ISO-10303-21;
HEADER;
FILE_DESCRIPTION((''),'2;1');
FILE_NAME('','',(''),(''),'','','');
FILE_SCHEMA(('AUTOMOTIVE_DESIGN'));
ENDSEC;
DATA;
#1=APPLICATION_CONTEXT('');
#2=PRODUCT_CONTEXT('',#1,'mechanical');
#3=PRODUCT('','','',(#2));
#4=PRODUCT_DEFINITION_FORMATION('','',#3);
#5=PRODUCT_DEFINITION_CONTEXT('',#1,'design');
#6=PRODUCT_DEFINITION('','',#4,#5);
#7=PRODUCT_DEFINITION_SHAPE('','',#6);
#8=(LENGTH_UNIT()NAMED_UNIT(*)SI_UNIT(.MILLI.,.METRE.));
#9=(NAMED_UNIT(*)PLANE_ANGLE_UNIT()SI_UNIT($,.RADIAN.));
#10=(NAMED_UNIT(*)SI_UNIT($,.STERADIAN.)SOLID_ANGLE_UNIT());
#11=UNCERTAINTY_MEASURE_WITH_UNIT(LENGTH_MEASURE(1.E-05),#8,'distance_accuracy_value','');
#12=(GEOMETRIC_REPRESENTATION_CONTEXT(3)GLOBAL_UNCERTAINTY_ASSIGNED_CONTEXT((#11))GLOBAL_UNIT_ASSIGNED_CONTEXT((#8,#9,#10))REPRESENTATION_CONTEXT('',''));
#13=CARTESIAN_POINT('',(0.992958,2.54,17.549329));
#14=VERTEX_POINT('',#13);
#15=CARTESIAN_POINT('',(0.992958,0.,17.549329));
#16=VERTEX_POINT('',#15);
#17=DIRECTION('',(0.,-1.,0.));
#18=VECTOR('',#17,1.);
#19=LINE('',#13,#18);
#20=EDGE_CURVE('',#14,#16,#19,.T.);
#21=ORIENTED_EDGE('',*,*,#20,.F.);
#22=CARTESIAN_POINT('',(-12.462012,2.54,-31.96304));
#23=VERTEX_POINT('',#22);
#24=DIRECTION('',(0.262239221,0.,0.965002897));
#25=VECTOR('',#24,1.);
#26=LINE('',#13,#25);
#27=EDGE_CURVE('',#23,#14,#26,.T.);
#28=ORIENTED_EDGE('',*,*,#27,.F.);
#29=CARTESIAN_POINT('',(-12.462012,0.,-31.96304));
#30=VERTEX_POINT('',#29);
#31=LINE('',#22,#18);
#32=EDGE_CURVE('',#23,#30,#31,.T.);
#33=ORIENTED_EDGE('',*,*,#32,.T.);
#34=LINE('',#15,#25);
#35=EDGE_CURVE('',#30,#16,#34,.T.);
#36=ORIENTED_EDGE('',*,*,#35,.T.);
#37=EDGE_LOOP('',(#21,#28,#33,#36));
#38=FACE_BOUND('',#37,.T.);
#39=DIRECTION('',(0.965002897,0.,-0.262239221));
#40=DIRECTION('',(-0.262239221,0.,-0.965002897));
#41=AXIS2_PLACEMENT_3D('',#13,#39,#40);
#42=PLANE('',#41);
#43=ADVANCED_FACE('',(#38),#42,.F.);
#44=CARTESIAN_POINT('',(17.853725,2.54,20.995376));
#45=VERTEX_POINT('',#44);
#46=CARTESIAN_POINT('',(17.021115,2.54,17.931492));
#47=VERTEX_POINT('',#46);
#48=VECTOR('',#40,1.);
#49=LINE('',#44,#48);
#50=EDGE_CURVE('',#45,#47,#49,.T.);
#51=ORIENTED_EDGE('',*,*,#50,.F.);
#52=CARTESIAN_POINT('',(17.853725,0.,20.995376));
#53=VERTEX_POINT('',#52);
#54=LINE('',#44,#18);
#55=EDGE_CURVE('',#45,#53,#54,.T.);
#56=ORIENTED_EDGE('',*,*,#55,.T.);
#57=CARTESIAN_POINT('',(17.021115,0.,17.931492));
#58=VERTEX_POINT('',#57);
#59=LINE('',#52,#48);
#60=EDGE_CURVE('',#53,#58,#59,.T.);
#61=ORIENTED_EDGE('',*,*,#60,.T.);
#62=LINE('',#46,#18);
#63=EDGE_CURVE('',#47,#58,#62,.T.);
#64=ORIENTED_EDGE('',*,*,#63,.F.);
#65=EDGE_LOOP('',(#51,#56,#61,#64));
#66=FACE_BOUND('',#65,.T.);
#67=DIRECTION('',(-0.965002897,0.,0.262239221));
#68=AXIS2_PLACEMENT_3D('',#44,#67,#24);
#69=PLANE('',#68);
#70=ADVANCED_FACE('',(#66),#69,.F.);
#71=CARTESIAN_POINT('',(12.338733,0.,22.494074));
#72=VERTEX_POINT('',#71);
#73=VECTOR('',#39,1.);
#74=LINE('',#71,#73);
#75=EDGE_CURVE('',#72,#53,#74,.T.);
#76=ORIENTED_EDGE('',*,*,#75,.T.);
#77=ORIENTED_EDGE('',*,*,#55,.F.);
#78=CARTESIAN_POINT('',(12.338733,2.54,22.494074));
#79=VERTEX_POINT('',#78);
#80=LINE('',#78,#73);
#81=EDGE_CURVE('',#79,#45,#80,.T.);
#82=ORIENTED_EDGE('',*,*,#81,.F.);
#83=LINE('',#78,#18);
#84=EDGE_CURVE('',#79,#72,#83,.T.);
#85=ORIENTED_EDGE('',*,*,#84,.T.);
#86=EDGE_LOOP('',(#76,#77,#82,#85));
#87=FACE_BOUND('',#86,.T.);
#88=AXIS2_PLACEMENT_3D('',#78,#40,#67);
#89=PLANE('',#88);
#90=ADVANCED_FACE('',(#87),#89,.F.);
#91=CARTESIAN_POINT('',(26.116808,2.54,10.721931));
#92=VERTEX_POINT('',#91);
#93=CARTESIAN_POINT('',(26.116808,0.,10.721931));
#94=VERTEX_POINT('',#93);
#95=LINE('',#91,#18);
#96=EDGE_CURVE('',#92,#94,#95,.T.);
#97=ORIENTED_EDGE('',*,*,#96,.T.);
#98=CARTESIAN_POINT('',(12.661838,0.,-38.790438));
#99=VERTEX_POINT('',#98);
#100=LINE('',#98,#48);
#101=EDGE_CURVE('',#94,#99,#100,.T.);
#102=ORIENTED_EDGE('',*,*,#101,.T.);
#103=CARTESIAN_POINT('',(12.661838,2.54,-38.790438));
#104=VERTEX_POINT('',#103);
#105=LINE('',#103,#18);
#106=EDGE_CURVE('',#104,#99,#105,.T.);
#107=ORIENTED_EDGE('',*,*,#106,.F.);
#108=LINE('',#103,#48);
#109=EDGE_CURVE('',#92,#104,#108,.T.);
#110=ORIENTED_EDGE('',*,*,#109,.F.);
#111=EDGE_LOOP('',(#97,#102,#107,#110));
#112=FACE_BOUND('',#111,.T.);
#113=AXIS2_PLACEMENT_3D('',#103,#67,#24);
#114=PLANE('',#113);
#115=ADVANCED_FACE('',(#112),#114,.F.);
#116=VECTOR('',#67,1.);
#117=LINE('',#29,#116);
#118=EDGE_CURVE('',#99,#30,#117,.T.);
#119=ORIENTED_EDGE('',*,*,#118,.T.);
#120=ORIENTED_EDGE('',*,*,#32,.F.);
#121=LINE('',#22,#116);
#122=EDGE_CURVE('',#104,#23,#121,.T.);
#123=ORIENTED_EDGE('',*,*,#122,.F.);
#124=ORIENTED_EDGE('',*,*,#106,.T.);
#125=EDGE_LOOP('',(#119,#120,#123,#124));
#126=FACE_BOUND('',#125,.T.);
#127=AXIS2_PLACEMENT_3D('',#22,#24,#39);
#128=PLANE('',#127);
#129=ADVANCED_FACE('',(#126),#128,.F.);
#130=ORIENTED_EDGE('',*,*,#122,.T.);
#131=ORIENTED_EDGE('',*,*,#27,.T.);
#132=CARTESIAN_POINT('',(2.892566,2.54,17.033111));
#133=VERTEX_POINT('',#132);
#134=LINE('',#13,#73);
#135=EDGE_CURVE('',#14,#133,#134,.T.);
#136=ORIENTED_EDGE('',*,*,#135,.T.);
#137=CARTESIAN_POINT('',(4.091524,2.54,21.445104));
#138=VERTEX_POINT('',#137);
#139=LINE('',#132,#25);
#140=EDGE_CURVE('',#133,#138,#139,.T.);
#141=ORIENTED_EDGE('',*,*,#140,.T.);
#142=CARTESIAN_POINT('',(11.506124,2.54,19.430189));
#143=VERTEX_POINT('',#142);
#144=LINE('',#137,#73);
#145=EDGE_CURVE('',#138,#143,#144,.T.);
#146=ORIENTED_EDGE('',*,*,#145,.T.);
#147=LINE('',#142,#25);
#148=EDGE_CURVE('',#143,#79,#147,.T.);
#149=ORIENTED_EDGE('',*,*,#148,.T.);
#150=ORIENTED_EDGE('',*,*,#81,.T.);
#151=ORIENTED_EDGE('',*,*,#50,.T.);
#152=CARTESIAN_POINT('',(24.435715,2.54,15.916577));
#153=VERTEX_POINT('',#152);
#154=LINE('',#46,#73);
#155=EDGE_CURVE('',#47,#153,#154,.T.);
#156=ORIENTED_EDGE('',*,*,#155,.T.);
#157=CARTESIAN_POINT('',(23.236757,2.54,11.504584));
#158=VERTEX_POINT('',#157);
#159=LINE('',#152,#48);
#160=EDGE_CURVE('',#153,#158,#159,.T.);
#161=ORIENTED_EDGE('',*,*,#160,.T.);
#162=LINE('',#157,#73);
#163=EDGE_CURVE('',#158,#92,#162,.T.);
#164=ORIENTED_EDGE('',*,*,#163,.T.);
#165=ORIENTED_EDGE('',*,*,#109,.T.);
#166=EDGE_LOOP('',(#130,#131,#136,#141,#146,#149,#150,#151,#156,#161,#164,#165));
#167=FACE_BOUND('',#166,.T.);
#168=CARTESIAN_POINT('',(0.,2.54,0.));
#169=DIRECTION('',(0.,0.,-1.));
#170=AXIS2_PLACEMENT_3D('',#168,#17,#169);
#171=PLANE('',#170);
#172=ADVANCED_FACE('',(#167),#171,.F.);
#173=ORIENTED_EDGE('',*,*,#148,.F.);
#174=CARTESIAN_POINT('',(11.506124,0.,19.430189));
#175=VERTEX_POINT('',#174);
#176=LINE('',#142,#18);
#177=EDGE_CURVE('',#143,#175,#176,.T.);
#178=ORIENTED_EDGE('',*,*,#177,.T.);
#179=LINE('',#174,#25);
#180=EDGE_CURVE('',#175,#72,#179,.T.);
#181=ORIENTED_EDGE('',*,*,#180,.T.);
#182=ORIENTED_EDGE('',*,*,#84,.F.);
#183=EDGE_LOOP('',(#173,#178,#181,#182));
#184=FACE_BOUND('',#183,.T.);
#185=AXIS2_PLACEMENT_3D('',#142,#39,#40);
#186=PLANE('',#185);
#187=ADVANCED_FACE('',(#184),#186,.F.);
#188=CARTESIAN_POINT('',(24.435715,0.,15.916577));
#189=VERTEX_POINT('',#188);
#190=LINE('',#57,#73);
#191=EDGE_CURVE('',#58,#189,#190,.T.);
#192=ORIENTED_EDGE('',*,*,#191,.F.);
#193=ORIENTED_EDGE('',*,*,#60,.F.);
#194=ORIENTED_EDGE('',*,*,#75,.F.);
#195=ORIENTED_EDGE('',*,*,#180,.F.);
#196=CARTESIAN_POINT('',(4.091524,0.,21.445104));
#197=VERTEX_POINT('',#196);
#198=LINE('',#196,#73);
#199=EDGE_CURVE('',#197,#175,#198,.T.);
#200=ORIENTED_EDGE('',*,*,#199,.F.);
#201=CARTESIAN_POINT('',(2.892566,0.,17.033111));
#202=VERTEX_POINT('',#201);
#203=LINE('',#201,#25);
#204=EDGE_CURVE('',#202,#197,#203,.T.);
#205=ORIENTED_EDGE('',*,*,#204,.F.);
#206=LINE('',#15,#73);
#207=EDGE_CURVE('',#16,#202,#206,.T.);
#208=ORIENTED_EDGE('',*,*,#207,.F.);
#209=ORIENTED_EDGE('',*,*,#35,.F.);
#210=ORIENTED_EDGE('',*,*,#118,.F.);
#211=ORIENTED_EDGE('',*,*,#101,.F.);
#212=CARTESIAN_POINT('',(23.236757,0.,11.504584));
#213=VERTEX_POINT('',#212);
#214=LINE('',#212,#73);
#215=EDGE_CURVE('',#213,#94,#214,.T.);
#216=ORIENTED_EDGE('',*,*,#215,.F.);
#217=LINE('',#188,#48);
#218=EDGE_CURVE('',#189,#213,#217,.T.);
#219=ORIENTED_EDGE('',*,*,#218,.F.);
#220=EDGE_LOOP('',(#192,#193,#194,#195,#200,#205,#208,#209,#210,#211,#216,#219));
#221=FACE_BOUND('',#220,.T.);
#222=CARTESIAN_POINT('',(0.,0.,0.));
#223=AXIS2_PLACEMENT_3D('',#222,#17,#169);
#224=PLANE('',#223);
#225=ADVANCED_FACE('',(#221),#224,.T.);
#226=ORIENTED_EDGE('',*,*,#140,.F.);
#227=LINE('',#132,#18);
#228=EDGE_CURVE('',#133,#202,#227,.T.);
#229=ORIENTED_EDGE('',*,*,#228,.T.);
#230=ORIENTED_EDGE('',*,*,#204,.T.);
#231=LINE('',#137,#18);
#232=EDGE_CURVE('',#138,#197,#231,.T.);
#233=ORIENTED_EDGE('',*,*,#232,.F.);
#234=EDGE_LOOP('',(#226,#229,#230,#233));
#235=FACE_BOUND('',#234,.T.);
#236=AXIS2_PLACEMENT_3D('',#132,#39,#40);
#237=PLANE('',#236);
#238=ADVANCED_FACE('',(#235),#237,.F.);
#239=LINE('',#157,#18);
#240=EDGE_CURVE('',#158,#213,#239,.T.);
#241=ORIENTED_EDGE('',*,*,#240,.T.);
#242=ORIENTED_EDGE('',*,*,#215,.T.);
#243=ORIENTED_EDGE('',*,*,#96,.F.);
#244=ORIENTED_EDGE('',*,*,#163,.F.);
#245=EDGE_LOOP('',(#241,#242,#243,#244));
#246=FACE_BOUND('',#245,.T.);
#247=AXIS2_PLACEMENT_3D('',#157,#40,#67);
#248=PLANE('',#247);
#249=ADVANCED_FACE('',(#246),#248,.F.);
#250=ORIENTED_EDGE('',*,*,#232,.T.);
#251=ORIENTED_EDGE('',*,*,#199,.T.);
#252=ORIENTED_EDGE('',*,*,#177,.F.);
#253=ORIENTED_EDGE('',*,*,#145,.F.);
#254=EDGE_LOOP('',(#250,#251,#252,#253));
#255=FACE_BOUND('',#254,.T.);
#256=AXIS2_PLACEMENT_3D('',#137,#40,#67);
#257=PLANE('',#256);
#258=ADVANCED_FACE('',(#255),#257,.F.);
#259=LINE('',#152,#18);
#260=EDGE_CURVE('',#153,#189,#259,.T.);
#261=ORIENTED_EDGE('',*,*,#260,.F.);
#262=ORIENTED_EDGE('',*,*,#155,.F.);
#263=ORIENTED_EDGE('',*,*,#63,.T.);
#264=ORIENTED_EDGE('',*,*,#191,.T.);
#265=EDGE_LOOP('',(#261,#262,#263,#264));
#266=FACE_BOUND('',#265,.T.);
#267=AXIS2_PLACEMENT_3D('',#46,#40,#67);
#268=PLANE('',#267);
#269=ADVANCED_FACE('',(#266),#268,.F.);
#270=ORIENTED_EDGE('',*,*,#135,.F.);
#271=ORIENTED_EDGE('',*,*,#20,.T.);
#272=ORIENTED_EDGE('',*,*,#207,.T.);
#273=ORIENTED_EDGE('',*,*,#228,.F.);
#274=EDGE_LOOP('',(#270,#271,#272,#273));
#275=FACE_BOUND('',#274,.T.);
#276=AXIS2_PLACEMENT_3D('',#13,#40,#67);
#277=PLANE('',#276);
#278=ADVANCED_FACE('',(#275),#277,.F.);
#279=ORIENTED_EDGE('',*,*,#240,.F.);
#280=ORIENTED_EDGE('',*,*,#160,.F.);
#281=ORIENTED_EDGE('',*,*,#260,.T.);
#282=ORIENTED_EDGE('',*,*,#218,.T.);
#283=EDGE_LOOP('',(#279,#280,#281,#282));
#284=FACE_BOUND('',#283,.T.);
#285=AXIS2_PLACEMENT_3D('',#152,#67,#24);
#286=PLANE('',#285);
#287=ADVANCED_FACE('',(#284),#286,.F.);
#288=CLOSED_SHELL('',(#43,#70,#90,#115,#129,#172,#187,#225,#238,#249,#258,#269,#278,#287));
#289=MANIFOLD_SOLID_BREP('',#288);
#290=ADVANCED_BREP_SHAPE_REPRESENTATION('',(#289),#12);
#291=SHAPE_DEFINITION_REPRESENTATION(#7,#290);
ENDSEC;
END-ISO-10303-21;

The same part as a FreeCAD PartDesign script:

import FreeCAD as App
import Part
import Sketcher
from FreeCAD import Vector
Q = App.Units.Quantity

doc = App.newDocument("Part")
body = doc.addObject("PartDesign::Body", "Body")

# Sketch on XZ plane
sketch1 = body.newObject("Sketcher::SketchObject", "Sketch")
sketch1.AttachmentSupport = (doc.getObject("XZ_Plane"), [""])
sketch1.MapMode = "FlatFace"
sketch1.addGeometry(Part.LineSegment(Vector(12.7, -38.8, 0), Vector(-12.5, -32, 0)), False)
sketch1.addGeometry(Part.LineSegment(Vector(-12.5, -32, 0), Vector(1, 17.5, 0)), False)
sketch1.addGeometry(Part.LineSegment(Vector(1, 17.5, 0), Vector(2.9, 17, 0)), False)
sketch1.addGeometry(Part.LineSegment(Vector(2.9, 17, 0), Vector(4.1, 21.4, 0)), False)
sketch1.addGeometry(Part.LineSegment(Vector(4.1, 21.4, 0), Vector(11.5, 19.4, 0)), False)
sketch1.addGeometry(Part.LineSegment(Vector(11.5, 19.4, 0), Vector(12.3, 22.5, 0)), False)
sketch1.addGeometry(Part.LineSegment(Vector(12.3, 22.5, 0), Vector(17.9, 21, 0)), False)
sketch1.addGeometry(Part.LineSegment(Vector(17.9, 21, 0), Vector(17, 17.9, 0)), False)
sketch1.addGeometry(Part.LineSegment(Vector(17, 17.9, 0), Vector(24.4, 15.9, 0)), False)
sketch1.addGeometry(Part.LineSegment(Vector(24.4, 15.9, 0), Vector(23.2, 11.5, 0)), False)
sketch1.addGeometry(Part.LineSegment(Vector(23.2, 11.5, 0), Vector(26.1, 10.7, 0)), False)
sketch1.addGeometry(Part.LineSegment(Vector(26.1, 10.7, 0), Vector(12.7, -38.8, 0)), False)
sketch1.addConstraint(Sketcher.Constraint("Coincident", 0, 2, 1, 1))
sketch1.addConstraint(Sketcher.Constraint("Coincident", 1, 2, 2, 1))
sketch1.addConstraint(Sketcher.Constraint("Coincident", 2, 2, 3, 1))
sketch1.addConstraint(Sketcher.Constraint("Coincident", 3, 2, 4, 1))
sketch1.addConstraint(Sketcher.Constraint("Coincident", 4, 2, 5, 1))
sketch1.addConstraint(Sketcher.Constraint("Coincident", 5, 2, 6, 1))
sketch1.addConstraint(Sketcher.Constraint("Coincident", 6, 2, 7, 1))
sketch1.addConstraint(Sketcher.Constraint("Coincident", 7, 2, 8, 1))
sketch1.addConstraint(Sketcher.Constraint("Coincident", 8, 2, 9, 1))
sketch1.addConstraint(Sketcher.Constraint("Coincident", 9, 2, 10, 1))
sketch1.addConstraint(Sketcher.Constraint("Coincident", 10, 2, 11, 1))
sketch1.addConstraint(Sketcher.Constraint("Coincident", 11, 2, 0, 1))
sketch1.addConstraint(Sketcher.Constraint("Perpendicular", 0, 1))
sketch1.addConstraint(Sketcher.Constraint("Perpendicular", 1, 2))
sketch1.addConstraint(Sketcher.Constraint("Perpendicular", 2, 3))
sketch1.addConstraint(Sketcher.Constraint("Perpendicular", 3, 4))
sketch1.addConstraint(Sketcher.Constraint("Perpendicular", 4, 5))
sketch1.addConstraint(Sketcher.Constraint("Perpendicular", 5, 6))
sketch1.addConstraint(Sketcher.Constraint("Perpendicular", 6, 7))
sketch1.addConstraint(Sketcher.Constraint("Perpendicular", 7, 8))
sketch1.addConstraint(Sketcher.Constraint("Perpendicular", 8, 9))
sketch1.addConstraint(Sketcher.Constraint("Perpendicular", 9, 10))
sketch1.addConstraint(Sketcher.Constraint("Perpendicular", 10, 11))
sketch1.addConstraint(Sketcher.Constraint("Equal", 5, 7))
sketch1.addConstraint(Sketcher.Constraint("Equal", 4, 8))
sketch1.addConstraint(Sketcher.Constraint("Equal", 3, 9))
sketch1.addConstraint(Sketcher.Constraint("Distance", 1, Q("2.02 in")))
sketch1.addConstraint(Sketcher.Constraint("Distance", 3, Q("0.18 in")))
sketch1.addConstraint(Sketcher.Constraint("Distance", 0, Q("1.025 in")))
sketch1.addConstraint(Sketcher.Constraint("Distance", 5, Q("0.125 in")))
sketch1.addConstraint(Sketcher.Constraint("Distance", 6, Q("0.225 in")))
sketch1.addConstraint(Sketcher.Constraint("Distance", 2, Q("0.0775 in")))
sketch1.addConstraint(Sketcher.Constraint("Distance", 4, Q("0.3025 in")))
sketch1.addConstraint(Sketcher.Constraint("DistanceX", 3, 2, 4, 2, 7.4146))
sketch1.addConstraint(Sketcher.Constraint("DistanceY", 0, 2, -1, 1, 31.96304))
sketch1.addConstraint(Sketcher.Constraint("DistanceX", -1, 1, 10, 2, 26.116808))
pad1 = body.newObject("PartDesign::Pad", "Pad")
pad1.Profile = sketch1
pad1.Length = Q("0.1 in")
pad1.Reversed = True

doc.recompute()
